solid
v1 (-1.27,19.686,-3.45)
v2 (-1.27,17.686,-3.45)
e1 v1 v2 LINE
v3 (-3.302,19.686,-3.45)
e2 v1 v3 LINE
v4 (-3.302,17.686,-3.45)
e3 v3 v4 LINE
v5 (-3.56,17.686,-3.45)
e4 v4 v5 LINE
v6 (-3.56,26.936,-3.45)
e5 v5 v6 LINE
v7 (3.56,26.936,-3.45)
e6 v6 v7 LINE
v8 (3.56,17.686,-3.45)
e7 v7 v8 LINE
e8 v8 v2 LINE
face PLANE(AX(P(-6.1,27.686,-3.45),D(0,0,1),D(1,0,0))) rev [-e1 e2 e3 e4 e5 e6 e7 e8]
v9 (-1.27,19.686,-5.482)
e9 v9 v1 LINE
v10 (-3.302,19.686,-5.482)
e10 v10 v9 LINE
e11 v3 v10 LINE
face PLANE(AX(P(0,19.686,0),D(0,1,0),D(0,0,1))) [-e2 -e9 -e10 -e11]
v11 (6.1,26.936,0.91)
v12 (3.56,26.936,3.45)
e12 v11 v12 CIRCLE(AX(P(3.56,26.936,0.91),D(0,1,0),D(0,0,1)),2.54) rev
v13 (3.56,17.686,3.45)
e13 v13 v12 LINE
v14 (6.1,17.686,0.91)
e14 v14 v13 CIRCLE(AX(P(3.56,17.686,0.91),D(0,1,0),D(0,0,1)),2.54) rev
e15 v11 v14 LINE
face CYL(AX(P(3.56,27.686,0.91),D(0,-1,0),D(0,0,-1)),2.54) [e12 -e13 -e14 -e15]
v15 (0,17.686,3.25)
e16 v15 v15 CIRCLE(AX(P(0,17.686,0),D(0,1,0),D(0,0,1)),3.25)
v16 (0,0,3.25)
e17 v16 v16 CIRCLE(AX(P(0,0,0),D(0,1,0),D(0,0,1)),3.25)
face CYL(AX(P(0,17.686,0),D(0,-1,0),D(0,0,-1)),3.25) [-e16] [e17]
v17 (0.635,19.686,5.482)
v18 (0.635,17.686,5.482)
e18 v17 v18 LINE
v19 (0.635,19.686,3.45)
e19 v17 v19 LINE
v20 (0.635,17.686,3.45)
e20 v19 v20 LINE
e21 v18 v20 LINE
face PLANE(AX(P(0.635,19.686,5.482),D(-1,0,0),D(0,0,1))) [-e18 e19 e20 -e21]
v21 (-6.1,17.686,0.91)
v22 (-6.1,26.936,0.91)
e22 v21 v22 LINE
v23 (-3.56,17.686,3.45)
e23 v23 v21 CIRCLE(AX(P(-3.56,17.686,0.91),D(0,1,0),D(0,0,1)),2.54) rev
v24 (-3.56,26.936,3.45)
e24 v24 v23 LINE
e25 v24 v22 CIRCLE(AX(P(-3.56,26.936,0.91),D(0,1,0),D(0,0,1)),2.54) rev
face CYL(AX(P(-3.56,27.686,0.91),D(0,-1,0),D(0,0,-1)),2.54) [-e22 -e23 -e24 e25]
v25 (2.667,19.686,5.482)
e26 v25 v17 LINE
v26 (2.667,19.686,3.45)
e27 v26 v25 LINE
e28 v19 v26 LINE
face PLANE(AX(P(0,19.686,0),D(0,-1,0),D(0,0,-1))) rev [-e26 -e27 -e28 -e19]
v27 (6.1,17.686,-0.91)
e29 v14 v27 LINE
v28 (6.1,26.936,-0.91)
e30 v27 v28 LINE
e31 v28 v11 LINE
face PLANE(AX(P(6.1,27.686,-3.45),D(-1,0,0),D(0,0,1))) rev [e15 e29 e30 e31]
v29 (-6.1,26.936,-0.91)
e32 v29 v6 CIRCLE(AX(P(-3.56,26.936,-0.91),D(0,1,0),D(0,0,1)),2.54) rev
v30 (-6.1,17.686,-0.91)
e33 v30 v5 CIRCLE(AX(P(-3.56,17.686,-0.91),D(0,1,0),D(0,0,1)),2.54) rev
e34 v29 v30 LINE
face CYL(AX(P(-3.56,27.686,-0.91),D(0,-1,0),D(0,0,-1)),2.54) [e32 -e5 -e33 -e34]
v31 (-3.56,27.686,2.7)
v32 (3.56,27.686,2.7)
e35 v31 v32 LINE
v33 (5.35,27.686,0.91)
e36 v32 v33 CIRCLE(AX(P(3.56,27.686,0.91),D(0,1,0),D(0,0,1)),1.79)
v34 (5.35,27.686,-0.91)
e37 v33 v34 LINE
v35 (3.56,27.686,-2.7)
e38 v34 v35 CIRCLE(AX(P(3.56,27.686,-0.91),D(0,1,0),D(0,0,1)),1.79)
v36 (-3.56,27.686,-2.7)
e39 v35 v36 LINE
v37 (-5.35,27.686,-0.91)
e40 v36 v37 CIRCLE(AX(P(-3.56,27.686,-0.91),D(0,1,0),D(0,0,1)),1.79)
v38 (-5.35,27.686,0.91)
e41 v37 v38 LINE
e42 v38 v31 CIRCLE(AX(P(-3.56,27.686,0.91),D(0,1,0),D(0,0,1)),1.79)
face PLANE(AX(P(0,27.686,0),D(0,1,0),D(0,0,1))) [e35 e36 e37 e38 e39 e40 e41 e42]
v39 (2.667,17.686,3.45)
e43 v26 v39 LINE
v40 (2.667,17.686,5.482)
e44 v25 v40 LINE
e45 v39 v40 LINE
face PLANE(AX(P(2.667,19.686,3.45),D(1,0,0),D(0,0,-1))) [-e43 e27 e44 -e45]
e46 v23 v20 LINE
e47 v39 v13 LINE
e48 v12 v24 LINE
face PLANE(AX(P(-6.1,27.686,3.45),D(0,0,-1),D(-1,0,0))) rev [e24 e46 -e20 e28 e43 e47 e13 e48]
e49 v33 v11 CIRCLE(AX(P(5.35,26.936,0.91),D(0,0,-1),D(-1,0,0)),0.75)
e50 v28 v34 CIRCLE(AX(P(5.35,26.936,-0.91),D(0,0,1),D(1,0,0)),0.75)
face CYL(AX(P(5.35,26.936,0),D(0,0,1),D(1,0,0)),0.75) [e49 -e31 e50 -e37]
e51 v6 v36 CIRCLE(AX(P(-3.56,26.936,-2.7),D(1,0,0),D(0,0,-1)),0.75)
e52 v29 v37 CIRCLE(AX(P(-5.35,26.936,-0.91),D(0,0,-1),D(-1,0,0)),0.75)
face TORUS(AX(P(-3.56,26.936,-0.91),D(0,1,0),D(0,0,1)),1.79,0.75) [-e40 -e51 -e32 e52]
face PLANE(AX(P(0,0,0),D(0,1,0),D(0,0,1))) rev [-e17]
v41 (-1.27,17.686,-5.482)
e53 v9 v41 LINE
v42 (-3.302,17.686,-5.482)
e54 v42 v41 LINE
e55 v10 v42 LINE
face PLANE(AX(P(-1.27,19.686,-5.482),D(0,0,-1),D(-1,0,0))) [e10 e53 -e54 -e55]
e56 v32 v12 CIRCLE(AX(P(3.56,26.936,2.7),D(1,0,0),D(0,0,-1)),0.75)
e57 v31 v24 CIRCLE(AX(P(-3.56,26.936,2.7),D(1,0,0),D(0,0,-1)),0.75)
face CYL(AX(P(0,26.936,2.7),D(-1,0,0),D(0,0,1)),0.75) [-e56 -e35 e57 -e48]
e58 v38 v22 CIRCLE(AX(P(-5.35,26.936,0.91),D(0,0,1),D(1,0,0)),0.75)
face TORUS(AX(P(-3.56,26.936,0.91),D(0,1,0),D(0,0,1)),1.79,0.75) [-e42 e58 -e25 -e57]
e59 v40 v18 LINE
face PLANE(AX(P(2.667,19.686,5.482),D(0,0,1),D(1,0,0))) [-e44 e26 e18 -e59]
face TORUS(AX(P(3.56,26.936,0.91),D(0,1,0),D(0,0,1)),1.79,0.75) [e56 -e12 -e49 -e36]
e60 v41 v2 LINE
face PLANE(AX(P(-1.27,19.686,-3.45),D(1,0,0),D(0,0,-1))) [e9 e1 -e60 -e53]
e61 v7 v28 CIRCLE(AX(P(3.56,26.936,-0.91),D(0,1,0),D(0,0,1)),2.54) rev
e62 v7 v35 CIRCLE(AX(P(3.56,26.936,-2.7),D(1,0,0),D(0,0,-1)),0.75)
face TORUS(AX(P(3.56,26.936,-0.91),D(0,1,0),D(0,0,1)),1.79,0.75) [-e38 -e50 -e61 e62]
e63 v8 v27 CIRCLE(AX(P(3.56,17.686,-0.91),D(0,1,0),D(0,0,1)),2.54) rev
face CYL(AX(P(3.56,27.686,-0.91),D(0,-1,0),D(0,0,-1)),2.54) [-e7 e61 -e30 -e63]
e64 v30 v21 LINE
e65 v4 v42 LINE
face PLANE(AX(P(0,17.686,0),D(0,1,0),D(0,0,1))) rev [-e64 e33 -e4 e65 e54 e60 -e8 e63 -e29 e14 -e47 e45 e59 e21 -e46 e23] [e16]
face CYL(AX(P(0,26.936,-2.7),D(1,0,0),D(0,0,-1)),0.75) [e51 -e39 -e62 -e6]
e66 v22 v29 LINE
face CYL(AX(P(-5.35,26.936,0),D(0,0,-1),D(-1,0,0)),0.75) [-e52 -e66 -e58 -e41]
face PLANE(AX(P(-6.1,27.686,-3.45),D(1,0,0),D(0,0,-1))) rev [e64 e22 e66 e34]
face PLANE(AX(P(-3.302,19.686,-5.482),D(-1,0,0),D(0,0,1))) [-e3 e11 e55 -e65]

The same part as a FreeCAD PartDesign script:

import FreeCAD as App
import Part
import Sketcher
from FreeCAD import Vector
Q = App.Units.Quantity


def edges_at(feature, points):
    """Names of the edges that pass closest to the given points."""
    edges = feature.Shape.Edges
    near = lambda p: min(range(len(edges)), key=lambda i: edges[i].distToShape(Part.Vertex(*p))[0])
    return sorted({f"Edge{near(p) + 1}" for p in points})

doc = App.newDocument("Part")
body = doc.addObject("PartDesign::Body", "Body")

sketch1 = body.newObject("Sketcher::SketchObject", "Sketch")
sketch1.AttachmentSupport = (doc.getObject("XZ_Plane"), [""])
sketch1.MapMode = "FlatFace"
sketch1.addGeometry(Part.Circle(Vector(0, 0, 0), Vector(0, 0, 1), 3.2), False)
sketch1.addConstraint(Sketcher.Constraint("Coincident", 0, 3, -1, 1))
sketch1.addConstraint(Sketcher.Constraint("Diameter", 0, Q("6.5 mm")))
pad1 = body.newObject("PartDesign::Pad", "Pad")
pad1.Profile = sketch1
pad1.Length = 17.686
pad1.Reversed = True

sketch2 = body.newObject("Sketcher::SketchObject", "Sketch001")
sketch2.AttachmentSupport = (doc.getObject("XZ_Plane"), [""])
sketch2.MapMode = "FlatFace"
sketch2.AttachmentOffset = App.Placement(Vector(0, 0, -17.686), App.Rotation())
sketch2.addGeometry(Part.LineSegment(Vector(-6, -3, 0), Vector(-6, 3, 0)), False)
sketch2.addGeometry(Part.LineSegment(Vector(-6, 3, 0), Vector(6, 3, 0)), False)
sketch2.addGeometry(Part.LineSegment(Vector(6, 3, 0), Vector(6, -3, 0)), False)
sketch2.addGeometry(Part.LineSegment(Vector(6, -3, 0), Vector(-6, -3, 0)), False)
sketch2.addConstraint(Sketcher.Constraint("Coincident", 0, 2, 1, 1))
sketch2.addConstraint(Sketcher.Constraint("Coincident", 1, 2, 2, 1))
sketch2.addConstraint(Sketcher.Constraint("Coincident", 2, 2, 3, 1))
sketch2.addConstraint(Sketcher.Constraint("Coincident", 3, 2, 0, 1))
sketch2.addConstraint(Sketcher.Constraint("Vertical", 0))
sketch2.addConstraint(Sketcher.Constraint("Horizontal", 1))
sketch2.addConstraint(Sketcher.Constraint("Vertical", 2))
sketch2.addConstraint(Sketcher.Constraint("Horizontal", 3))
sketch2.addConstraint(Sketcher.Constraint("Symmetric", 0, 2, 2, 2, -1, 1))
sketch2.addConstraint(Sketcher.Constraint("DistanceX", 1, 1, 1, 2, Q("12.2 mm")))
sketch2.addConstraint(Sketcher.Constraint("DistanceY", 0, 1, 0, 2, Q("6.9 mm")))
pad2 = body.newObject("PartDesign::Pad", "Pad001")
pad2.Profile = sketch2
pad2.Length = 10
pad2.Reversed = True
doc.recompute()

fillet = body.newObject("PartDesign::Fillet", "Fillet")
fillet.Base = (pad2, edges_at(pad2, [
    (6.1, 22.686, 3.45),
    (6.1, 22.686, -3.45),
    (-6.1, 22.686, -3.45),
    (-6.1, 22.686, 3.45),
]))
fillet.Radius = 2.54
doc.recompute()

fillet2 = body.newObject("PartDesign::Fillet", "Fillet001")
fillet2.Base = (fillet, edges_at(fillet, [
    (-6.1, 27.686, 0),
    (0, 27.686, -3.45),
    (6.1, 27.686, 0),
    (0, 27.686, 3.45),
    (-5.356, 27.686, 2.706),
    (5.356, 27.686, 2.706),
    (5.356, 27.686, -2.706),
    (-5.356, 27.686, -2.706),
]))
fillet2.Radius = 0.75

sketch3 = body.newObject("Sketcher::SketchObject", "Sketch002")
sketch3.AttachmentSupport = (doc.getObject("XZ_Plane"), [""])
sketch3.MapMode = "FlatFace"
sketch3.AttachmentOffset = App.Placement(Vector(0, 0, -17.686), App.Rotation())
sketch3.addGeometry(Part.LineSegment(Vector(-3.3, -3.5, 0), Vector(-3.3, -5.5, 0)), False)
sketch3.addGeometry(Part.LineSegment(Vector(-3.3, -5.5, 0), Vector(-1.3, -5.5, 0)), False)
sketch3.addGeometry(Part.LineSegment(Vector(-1.3, -5.5, 0), Vector(-1.3, -3.5, 0)), False)
sketch3.addGeometry(Part.LineSegment(Vector(-1.3, -3.5, 0), Vector(-3.3, -3.5, 0)), False)
sketch3.addGeometry(Part.LineSegment(Vector(0.6, 5.5, 0), Vector(0.6, 3.5, 0)), False)
sketch3.addGeometry(Part.LineSegment(Vector(0.6, 3.5, 0), Vector(2.7, 3.5, 0)), False)
sketch3.addGeometry(Part.LineSegment(Vector(2.7, 3.5, 0), Vector(2.7, 5.5, 0)), False)
sketch3.addGeometry(Part.LineSegment(Vector(2.7, 5.5, 0), Vector(0.6, 5.5, 0)), False)
sketch3.addConstraint(Sketcher.Constraint("Coincident", 0, 2, 1, 1))
sketch3.addConstraint(Sketcher.Constraint("Coincident", 1, 2, 2, 1))
sketch3.addConstraint(Sketcher.Constraint("Coincident", 2, 2, 3, 1))
sketch3.addConstraint(Sketcher.Constraint("Coincident", 3, 2, 0, 1))
sketch3.addConstraint(Sketcher.Constraint("Coincident", 4, 2, 5, 1))
sketch3.addConstraint(Sketcher.Constraint("Coincident", 5, 2, 6, 1))
sketch3.addConstraint(Sketcher.Constraint("Coincident", 6, 2, 7, 1))
sketch3.addConstraint(Sketcher.Constraint("Coincident", 7, 2, 4, 1))
sketch3.addConstraint(Sketcher.Constraint("Vertical", 0))
sketch3.addConstraint(Sketcher.Constraint("Horizontal", 1))
sketch3.addConstraint(Sketcher.Constraint("Vertical", 2))
sketch3.addConstraint(Sketcher.Constraint("Horizontal", 3))
sketch3.addConstraint(Sketcher.Constraint("Vertical", 4))
sketch3.addConstraint(Sketcher.Constraint("Horizontal", 5))
sketch3.addConstraint(Sketcher.Constraint("Vertical", 6))
sketch3.addConstraint(Sketcher.Constraint("Horizontal", 7))
sketch3.addConstraint(Sketcher.Constraint("Equal", 3, 5))
sketch3.addConstraint(Sketcher.Constraint("Equal", 7, 0))
sketch3.addConstraint(Sketcher.Constraint("Equal", 2, 4))
sketch3.addConstraint(Sketcher.Constraint("DistanceY", 2, 2, 4, 2, Q("6.9 mm")))
sketch3.addConstraint(Sketcher.Constraint("DistanceX", 1, 1, 1, 2, Q("2.032 mm")))
sketch3.addConstraint(Sketcher.Constraint("DistanceX", 1, 2, -1, 1, Q("1.27 mm")))
sketch3.addConstraint(Sketcher.Constraint("DistanceY", 2, 2, -1, 1, Q("3.45 mm")))
sketch3.addConstraint(Sketcher.Constraint("DistanceX", -1, 1, 4, 2, Q("0.635 mm")))
pad3 = body.newObject("PartDesign::Pad", "Pad002")
pad3.Profile = sketch3
pad3.Length = 2
pad3.Reversed = True

doc.recompute()
